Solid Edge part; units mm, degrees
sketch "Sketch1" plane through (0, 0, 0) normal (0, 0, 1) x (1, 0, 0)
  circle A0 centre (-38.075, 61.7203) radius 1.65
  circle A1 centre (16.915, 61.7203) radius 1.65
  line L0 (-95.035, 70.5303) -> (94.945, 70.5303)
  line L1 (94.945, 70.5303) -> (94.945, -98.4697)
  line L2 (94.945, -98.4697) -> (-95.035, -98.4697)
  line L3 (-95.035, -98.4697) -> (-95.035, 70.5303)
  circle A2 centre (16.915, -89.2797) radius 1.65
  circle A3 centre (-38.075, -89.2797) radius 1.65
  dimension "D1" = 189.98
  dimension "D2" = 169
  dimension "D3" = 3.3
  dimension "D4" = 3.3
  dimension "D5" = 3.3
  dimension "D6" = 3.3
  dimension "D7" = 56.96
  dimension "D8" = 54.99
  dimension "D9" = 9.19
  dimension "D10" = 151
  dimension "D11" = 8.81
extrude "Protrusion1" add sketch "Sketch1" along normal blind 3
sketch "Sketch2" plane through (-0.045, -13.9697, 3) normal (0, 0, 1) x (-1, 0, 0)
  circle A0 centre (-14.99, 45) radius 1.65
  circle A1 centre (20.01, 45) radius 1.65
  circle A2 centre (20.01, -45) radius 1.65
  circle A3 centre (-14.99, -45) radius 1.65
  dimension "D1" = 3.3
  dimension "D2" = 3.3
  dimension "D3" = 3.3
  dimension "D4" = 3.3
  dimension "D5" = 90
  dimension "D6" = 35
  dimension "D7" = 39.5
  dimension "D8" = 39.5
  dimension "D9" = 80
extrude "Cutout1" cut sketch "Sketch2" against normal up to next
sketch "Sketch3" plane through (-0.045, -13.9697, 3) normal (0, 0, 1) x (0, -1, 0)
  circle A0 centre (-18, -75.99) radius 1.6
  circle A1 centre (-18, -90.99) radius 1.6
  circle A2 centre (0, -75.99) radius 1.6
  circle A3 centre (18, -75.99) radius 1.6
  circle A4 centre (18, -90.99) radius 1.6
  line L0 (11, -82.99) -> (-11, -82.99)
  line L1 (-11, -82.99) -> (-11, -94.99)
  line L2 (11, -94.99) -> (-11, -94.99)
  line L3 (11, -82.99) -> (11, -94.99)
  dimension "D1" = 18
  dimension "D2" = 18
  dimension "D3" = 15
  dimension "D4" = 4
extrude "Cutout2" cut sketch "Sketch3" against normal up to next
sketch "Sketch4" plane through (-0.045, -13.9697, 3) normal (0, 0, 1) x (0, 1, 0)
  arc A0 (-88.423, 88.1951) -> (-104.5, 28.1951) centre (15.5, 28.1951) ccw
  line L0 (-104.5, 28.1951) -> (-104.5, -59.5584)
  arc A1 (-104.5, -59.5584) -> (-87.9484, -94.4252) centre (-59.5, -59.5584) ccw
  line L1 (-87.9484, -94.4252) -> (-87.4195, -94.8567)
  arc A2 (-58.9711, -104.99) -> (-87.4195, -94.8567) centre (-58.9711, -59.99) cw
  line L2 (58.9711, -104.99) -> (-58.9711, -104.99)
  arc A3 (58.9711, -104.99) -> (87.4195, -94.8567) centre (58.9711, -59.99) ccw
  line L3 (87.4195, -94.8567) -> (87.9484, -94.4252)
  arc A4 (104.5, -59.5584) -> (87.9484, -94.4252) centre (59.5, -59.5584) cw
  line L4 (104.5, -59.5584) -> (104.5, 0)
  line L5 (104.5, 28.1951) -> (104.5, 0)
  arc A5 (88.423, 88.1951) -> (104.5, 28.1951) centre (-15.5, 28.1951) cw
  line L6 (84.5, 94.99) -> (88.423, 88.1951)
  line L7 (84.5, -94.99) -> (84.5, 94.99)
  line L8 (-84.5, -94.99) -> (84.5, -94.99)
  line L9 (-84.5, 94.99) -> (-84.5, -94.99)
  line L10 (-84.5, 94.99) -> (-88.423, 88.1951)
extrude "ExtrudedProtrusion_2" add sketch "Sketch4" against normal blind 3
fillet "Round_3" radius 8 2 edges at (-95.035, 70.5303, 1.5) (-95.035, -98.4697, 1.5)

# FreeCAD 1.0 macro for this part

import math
import FreeCAD as App
import Part
import Sketcher

V = App.Vector


def edges_at(feature, points):
    """Names of the edges that pass closest to the given points."""
    edges = feature.Shape.Edges
    near = lambda p: min(range(len(edges)), key=lambda i: edges[i].distToShape(Part.Vertex(*p))[0])
    return sorted({f"Edge{near(p) + 1}" for p in points})

doc = App.newDocument("Part")
body = doc.addObject("PartDesign::Body", "Body")

sketch1 = body.newObject("Sketcher::SketchObject", "Sketch")
sketch1.AttachmentSupport = (doc.getObject("XY_Plane"), [""])
sketch1.MapMode = "FlatFace"
sketch1.addGeometry([
    Part.LineSegment(V(94.9, 70.5, 0), V(-95, 70.5, 0)),
    Part.LineSegment(V(-95, 70.5, 0), V(-95, -98.5, 0)),
    Part.LineSegment(V(-95, -98.5, 0), V(94.9, -98.5, 0)),
    Part.LineSegment(V(94.9, -98.5, 0), V(94.9, 70.5, 0)),
    Part.Circle(V(-38.1, -89.3, 0), V(0, 0, 1), 1.6),
    Part.Circle(V(16.9, -89.3, 0), V(0, 0, 1), 1.6),
    Part.Circle(V(-38.1, 61.7, 0), V(0, 0, 1), 1.6),
    Part.Circle(V(16.9, 61.7, 0), V(0, 0, 1), 1.6),
], False)
sketch1.addConstraint([
    Sketcher.Constraint("Coincident", 0, 2, 1, 1),
    Sketcher.Constraint("Coincident", 1, 2, 2, 1),
    Sketcher.Constraint("Coincident", 2, 2, 3, 1),
    Sketcher.Constraint("Coincident", 3, 2, 0, 1),
    Sketcher.Constraint("Horizontal", 0),
    Sketcher.Constraint("Vertical", 1),
    Sketcher.Constraint("Horizontal", 2),
    Sketcher.Constraint("Vertical", 3),
    Sketcher.Constraint("Equal", 4, 5),
    Sketcher.Constraint("Equal", 5, 6),
    Sketcher.Constraint("Equal", 6, 7),
    Sketcher.Constraint("Horizontal", 4, 3, 5, 3),
    Sketcher.Constraint("Horizontal", 6, 3, 7, 3),
    Sketcher.Constraint("Vertical", 4, 3, 6, 3),
    Sketcher.Constraint("Vertical", 5, 3, 7, 3),
    Sketcher.Constraint("Diameter", 4, 3.3),
    Sketcher.Constraint("DistanceY", 1, 2, 1, 1, 169.0),
    Sketcher.Constraint("DistanceY", 4, 3, 6, 3, 151.0),
    Sketcher.Constraint("DistanceX", 0, 2, 0, 1, 189.98),
    Sketcher.Constraint("DistanceX", 4, 3, 5, 3, 54.99),
    Sketcher.Constraint("DistanceX", 0, 2, 6, 3, 56.96),
    Sketcher.Constraint("DistanceY", 6, 3, 0, 2, 8.81),
    Sketcher.Constraint("DistanceX", 4, 3, -1, 1, 38.075),
    Sketcher.Constraint("DistanceY", 4, 3, -1, 1, 89.2797),
])
pad1 = body.newObject("PartDesign::Pad", "Pad")
pad1.Profile = sketch1
pad1.Length = 3

sketch2 = body.newObject("Sketcher::SketchObject", "Sketch001")
sketch2.AttachmentSupport = (doc.getObject("XY_Plane"), [""])
sketch2.MapMode = "FlatFace"
sketch2.AttachmentOffset = App.Placement(V(0, 0, 3), App.Rotation())
sketch2.addGeometry([
    Part.Circle(V(14.9, -59, 0), V(0, 0, 1), 1.6),
    Part.Circle(V(-20.1, -59, 0), V(0, 0, 1), 1.6),
    Part.Circle(V(-20.1, 31, 0), V(0, 0, 1), 1.6),
    Part.Circle(V(14.9, 31, 0), V(0, 0, 1), 1.6),
], False)
sketch2.addConstraint([
    Sketcher.Constraint("Equal", 0, 1),
    Sketcher.Constraint("Equal", 1, 2),
    Sketcher.Constraint("Equal", 2, 3),
    Sketcher.Constraint("Horizontal", 0, 3, 1, 3),
    Sketcher.Constraint("Horizontal", 2, 3, 3, 3),
    Sketcher.Constraint("Vertical", 1, 3, 2, 3),
    Sketcher.Constraint("Vertical", 0, 3, 3, 3),
    Sketcher.Constraint("Diameter", 0, 3.3),
    Sketcher.Constraint("DistanceX", 1, 3, 0, 3, 35.0),
    Sketcher.Constraint("DistanceY", 1, 3, 2, 3, 90.0),
    Sketcher.Constraint("DistanceX", -1, 1, 0, 3, 14.945),
    Sketcher.Constraint("DistanceY", 0, 3, -1, 1, 58.9697),
])
pocket1 = body.newObject("PartDesign::Pocket", "Pocket")
pocket1.Profile = sketch2
pocket1.Length = 3

sketch3 = body.newObject("Sketcher::SketchObject", "Sketch002")
sketch3.AttachmentSupport = (doc.getObject("XY_Plane"), [""])
sketch3.MapMode = "FlatFace"
sketch3.AttachmentOffset = App.Placement(V(0, 0, 3), App.Rotation())
sketch3.addGeometry([
    Part.Circle(V(-76, 4, 0), V(0, 0, 1), 1.6),
    Part.Circle(V(-91, 4, 0), V(0, 0, 1), 1.6),
    Part.Circle(V(-76, -14, 0), V(0, 0, 1), 1.6),
    Part.Circle(V(-76, -32, 0), V(0, 0, 1), 1.6),
    Part.Circle(V(-91, -32, 0), V(0, 0, 1), 1.6),
    Part.LineSegment(V(-95, -25, 0), V(-83, -25, 0)),
    Part.LineSegment(V(-83, -25, 0), V(-83, -3, 0)),
    Part.LineSegment(V(-83, -3, 0), V(-95, -3, 0)),
    Part.LineSegment(V(-95, -3, 0), V(-95, -25, 0)),
], False)
sketch3.addConstraint([
    Sketcher.Constraint("Coincident", 5, 2, 6, 1),
    Sketcher.Constraint("Coincident", 6, 2, 7, 1),
    Sketcher.Constraint("Coincident", 7, 2, 8, 1),
    Sketcher.Constraint("Coincident", 8, 2, 5, 1),
    Sketcher.Constraint("Horizontal", 5),
    Sketcher.Constraint("Vertical", 6),
    Sketcher.Constraint("Horizontal", 7),
    Sketcher.Constraint("Vertical", 8),
    Sketcher.Constraint("Equal", 0, 1),
    Sketcher.Constraint("Equal", 1, 2),
    Sketcher.Constraint("Equal", 2, 3),
    Sketcher.Constraint("Equal", 3, 4),
    Sketcher.Constraint("Horizontal", 0, 3, 1, 3),
    Sketcher.Constraint("Horizontal", 3, 3, 4, 3),
    Sketcher.Constraint("Vertical", 0, 3, 2, 3),
    Sketcher.Constraint("Vertical", 2, 3, 3, 3),
    Sketcher.Constraint("Vertical", 1, 3, 4, 3),
    Sketcher.Constraint("Diameter", 0, 3.2),
    Sketcher.Constraint("DistanceX", 5, 1, 5, 2, 12.0),
    Sketcher.Constraint("DistanceY", 6, 1, 6, 2, 22.0),
    Sketcher.Constraint("DistanceX", 1, 3, 0, 3, 15.0),
    Sketcher.Constraint("DistanceY", 2, 3, 0, 3, 18.0),
    Sketcher.Constraint("DistanceY", 3, 3, 2, 3, 18.0),
    Sketcher.Constraint("DistanceX", 5, 2, 3, 3, 7.0),
    Sketcher.Constraint("DistanceY", 3, 3, 5, 2, 7.0),
    Sketcher.Constraint("DistanceX", 0, 3, -1, 1, 76.035),
    Sketcher.Constraint("DistanceY", -1, 1, 0, 3, 4.0303),
])
pocket2 = body.newObject("PartDesign::Pocket", "Pocket001")
pocket2.Profile = sketch3
pocket2.Type = "UpToFirst"

sketch4 = body.newObject("Sketcher::SketchObject", "Sketch003")
sketch4.AttachmentSupport = (doc.getObject("XY_Plane"), [""])
sketch4.MapMode = "FlatFace"
sketch4.AttachmentOffset = App.Placement(V(0, 0, 3), App.Rotation())
sketch4.addGeometry([
    Part.LineSegment(V(-95.035, -98.4697, 0), V(-88.2401, -102.3927, 0)),
    Part.ArcOfCircle(Part.Circle(V(-28.2401, 1.5303, 0), V(0, 0, 1), 119.999958), math.radians(-120.000012), math.radians(-90)),
    Part.LineSegment(V(-28.2401, -118.4697, 0), V(59.5134, -118.4697, 0)),
    Part.ArcOfCircle(Part.Circle(V(59.5134, -73.4697, 0), V(0, 0, 1), 45), math.radians(-90), math.radians(-39.211576)),
    Part.LineSegment(V(94.3802, -101.9181, 0), V(94.8117, -101.3892, 0)),
    Part.ArcOfCircle(Part.Circle(V(59.945, -72.9408, 0), V(0, 0, 1), 45), math.radians(-39.211656), math.radians(0)),
    Part.LineSegment(V(104.945, -72.9408, 0), V(104.945, 45.0014, 0)),
    Part.ArcOfCircle(Part.Circle(V(59.945, 45.0014, 0), V(0, 0, 1), 45), math.radians(0), math.radians(39.211656)),
    Part.LineSegment(V(94.8117, 73.4498, 0), V(94.3802, 73.9787, 0)),
    Part.ArcOfCircle(Part.Circle(V(59.5134, 45.5303, 0), V(0, 0, 1), 45), math.radians(39.211576), math.radians(90)),
    Part.LineSegment(V(59.5134, 90.5303, 0), V(-28.2401, 90.5303, 0)),
    Part.ArcOfCircle(Part.Circle(V(-28.2401, -29.4697, 0), V(0, 0, 1), 119.999958), math.radians(90), math.radians(120.000012)),
    Part.LineSegment(V(-88.2401, 74.4533, 0), V(-95.035, 70.5303, 0)),
    Part.LineSegment(V(-95.035, 70.5303, 0), V(94.945, 70.5303, 0)),
    Part.LineSegment(V(94.945, 70.5303, 0), V(94.945, -98.4697, 0)),
    Part.LineSegment(V(94.945, -98.4697, 0), V(-95.035, -98.4697, 0)),
], False)
sketch4.addConstraint([
    Sketcher.Constraint("Coincident", 0, 2, 1, 1),
    Sketcher.Constraint("Coincident", 1, 2, 2, 1),
    Sketcher.Constraint("Coincident", 2, 2, 3, 1),
    Sketcher.Constraint("Coincident", 3, 2, 4, 1),
    Sketcher.Constraint("Coincident", 4, 2, 5, 1),
    Sketcher.Constraint("Coincident", 5, 2, 6, 1),
    Sketcher.Constraint("Coincident", 6, 2, 7, 1),
    Sketcher.Constraint("Coincident", 7, 2, 8, 1),
    Sketcher.Constraint("Coincident", 8, 2, 9, 1),
    Sketcher.Constraint("Coincident", 9, 2, 10, 1),
    Sketcher.Constraint("Coincident", 10, 2, 11, 1),
    Sketcher.Constraint("Coincident", 11, 2, 12, 1),
    Sketcher.Constraint("Coincident", 12, 2, 13, 1),
    Sketcher.Constraint("Coincident", 13, 2, 14, 1),
    Sketcher.Constraint("Coincident", 14, 2, 15, 1),
    Sketcher.Constraint("Coincident", 15, 2, 0, 1),
    Sketcher.Constraint("Horizontal", 2),
    Sketcher.Constraint("Vertical", 6),
    Sketcher.Constraint("Horizontal", 10),
    Sketcher.Constraint("Horizontal", 13),
    Sketcher.Constraint("Vertical", 14),
    Sketcher.Constraint("Horizontal", 15),
    Sketcher.Constraint("Radius", 1, 120.0),
    Sketcher.Constraint("Radius", 3, 45.0),
    Sketcher.Constraint("Radius", 5, 45.0),
    Sketcher.Constraint("Radius", 7, 45.0),
    Sketcher.Constraint("Radius", 9, 45.0),
    Sketcher.Constraint("Radius", 11, 120.0),
    Sketcher.Constraint("DistanceY", 14, 2, 14, 1, 169.0),
    Sketcher.Constraint("DistanceY", 1, 3, 9, 3, 44.0),
    Sketcher.Constraint("DistanceX", 0, 2, 11, 3, 60.0),
    Sketcher.Constraint("DistanceX", 0, 2, 1, 3, 60.0),
    Sketcher.Constraint("DistanceX", 0, 2, 1, 2, 60.0),
    Sketcher.Constraint("DistanceX", 11, 2, 10, 2, 60.0),
    Sketcher.Constraint("DistanceX", 11, 2, 1, 3, 60.0),
    Sketcher.Constraint("DistanceY", 12, 2, 10, 2, 20.0),
    Sketcher.Constraint("DistanceX", 13, 2, 6, 2, 10.0),
    Sketcher.Constraint("DistanceX", 13, 1, 13, 2, 189.98),
    Sketcher.Constraint("DistanceX", 15, 2, 15, 1, 189.98),
    Sketcher.Constraint("DistanceX", 1, 3, -1, 1, 28.24),
    Sketcher.Constraint("Distance", 0, 7.846),
    Sketcher.Constraint("DistanceX", 2, 1, 2, 2, 87.7535),
    Sketcher.Constraint("DistanceX", 10, 2, 10, 1, 87.7535),
    Sketcher.Constraint("DistanceY", 6, 1, 6, 2, 117.9422),
    Sketcher.Constraint("DistanceY", 3, 2, -1, 1, 101.918),
    Sketcher.Constraint("DistanceY", 3, 3, 5, 3, 0.529),
    Sketcher.Constraint("DistanceY", 1, 3, 7, 3, 43.471),
    Sketcher.Constraint("DistanceY", 3, 3, 5, 2, 0.529),
    Sketcher.Constraint("DistanceY", 7, 2, 8, 2, 0.529),
    Sketcher.Constraint("Distance", 4, 0.6826),
    Sketcher.Constraint("Distance", 8, 0.6826),
    Sketcher.Constraint("DistanceY", -1, 1, 1, 3, 1.5303),
    Sketcher.Constraint("DistanceX", -1, 1, 3, 3, 59.5134),
    Sketcher.Constraint("DistanceX", -1, 1, 7, 2, 94.8117),
])
pad2 = body.newObject("PartDesign::Pad", "Pad001")
pad2.Profile = sketch4
pad2.Length = 3
pad2.Reversed = True
doc.recompute()

fillet = body.newObject("PartDesign::Fillet", "Fillet")
fillet.Base = (pad2, edges_at(pad2, [(-95.035, 70.53, 1.5), (-95.035, -98.47, 1.5)]))
fillet.Radius = 8

doc.recompute()
